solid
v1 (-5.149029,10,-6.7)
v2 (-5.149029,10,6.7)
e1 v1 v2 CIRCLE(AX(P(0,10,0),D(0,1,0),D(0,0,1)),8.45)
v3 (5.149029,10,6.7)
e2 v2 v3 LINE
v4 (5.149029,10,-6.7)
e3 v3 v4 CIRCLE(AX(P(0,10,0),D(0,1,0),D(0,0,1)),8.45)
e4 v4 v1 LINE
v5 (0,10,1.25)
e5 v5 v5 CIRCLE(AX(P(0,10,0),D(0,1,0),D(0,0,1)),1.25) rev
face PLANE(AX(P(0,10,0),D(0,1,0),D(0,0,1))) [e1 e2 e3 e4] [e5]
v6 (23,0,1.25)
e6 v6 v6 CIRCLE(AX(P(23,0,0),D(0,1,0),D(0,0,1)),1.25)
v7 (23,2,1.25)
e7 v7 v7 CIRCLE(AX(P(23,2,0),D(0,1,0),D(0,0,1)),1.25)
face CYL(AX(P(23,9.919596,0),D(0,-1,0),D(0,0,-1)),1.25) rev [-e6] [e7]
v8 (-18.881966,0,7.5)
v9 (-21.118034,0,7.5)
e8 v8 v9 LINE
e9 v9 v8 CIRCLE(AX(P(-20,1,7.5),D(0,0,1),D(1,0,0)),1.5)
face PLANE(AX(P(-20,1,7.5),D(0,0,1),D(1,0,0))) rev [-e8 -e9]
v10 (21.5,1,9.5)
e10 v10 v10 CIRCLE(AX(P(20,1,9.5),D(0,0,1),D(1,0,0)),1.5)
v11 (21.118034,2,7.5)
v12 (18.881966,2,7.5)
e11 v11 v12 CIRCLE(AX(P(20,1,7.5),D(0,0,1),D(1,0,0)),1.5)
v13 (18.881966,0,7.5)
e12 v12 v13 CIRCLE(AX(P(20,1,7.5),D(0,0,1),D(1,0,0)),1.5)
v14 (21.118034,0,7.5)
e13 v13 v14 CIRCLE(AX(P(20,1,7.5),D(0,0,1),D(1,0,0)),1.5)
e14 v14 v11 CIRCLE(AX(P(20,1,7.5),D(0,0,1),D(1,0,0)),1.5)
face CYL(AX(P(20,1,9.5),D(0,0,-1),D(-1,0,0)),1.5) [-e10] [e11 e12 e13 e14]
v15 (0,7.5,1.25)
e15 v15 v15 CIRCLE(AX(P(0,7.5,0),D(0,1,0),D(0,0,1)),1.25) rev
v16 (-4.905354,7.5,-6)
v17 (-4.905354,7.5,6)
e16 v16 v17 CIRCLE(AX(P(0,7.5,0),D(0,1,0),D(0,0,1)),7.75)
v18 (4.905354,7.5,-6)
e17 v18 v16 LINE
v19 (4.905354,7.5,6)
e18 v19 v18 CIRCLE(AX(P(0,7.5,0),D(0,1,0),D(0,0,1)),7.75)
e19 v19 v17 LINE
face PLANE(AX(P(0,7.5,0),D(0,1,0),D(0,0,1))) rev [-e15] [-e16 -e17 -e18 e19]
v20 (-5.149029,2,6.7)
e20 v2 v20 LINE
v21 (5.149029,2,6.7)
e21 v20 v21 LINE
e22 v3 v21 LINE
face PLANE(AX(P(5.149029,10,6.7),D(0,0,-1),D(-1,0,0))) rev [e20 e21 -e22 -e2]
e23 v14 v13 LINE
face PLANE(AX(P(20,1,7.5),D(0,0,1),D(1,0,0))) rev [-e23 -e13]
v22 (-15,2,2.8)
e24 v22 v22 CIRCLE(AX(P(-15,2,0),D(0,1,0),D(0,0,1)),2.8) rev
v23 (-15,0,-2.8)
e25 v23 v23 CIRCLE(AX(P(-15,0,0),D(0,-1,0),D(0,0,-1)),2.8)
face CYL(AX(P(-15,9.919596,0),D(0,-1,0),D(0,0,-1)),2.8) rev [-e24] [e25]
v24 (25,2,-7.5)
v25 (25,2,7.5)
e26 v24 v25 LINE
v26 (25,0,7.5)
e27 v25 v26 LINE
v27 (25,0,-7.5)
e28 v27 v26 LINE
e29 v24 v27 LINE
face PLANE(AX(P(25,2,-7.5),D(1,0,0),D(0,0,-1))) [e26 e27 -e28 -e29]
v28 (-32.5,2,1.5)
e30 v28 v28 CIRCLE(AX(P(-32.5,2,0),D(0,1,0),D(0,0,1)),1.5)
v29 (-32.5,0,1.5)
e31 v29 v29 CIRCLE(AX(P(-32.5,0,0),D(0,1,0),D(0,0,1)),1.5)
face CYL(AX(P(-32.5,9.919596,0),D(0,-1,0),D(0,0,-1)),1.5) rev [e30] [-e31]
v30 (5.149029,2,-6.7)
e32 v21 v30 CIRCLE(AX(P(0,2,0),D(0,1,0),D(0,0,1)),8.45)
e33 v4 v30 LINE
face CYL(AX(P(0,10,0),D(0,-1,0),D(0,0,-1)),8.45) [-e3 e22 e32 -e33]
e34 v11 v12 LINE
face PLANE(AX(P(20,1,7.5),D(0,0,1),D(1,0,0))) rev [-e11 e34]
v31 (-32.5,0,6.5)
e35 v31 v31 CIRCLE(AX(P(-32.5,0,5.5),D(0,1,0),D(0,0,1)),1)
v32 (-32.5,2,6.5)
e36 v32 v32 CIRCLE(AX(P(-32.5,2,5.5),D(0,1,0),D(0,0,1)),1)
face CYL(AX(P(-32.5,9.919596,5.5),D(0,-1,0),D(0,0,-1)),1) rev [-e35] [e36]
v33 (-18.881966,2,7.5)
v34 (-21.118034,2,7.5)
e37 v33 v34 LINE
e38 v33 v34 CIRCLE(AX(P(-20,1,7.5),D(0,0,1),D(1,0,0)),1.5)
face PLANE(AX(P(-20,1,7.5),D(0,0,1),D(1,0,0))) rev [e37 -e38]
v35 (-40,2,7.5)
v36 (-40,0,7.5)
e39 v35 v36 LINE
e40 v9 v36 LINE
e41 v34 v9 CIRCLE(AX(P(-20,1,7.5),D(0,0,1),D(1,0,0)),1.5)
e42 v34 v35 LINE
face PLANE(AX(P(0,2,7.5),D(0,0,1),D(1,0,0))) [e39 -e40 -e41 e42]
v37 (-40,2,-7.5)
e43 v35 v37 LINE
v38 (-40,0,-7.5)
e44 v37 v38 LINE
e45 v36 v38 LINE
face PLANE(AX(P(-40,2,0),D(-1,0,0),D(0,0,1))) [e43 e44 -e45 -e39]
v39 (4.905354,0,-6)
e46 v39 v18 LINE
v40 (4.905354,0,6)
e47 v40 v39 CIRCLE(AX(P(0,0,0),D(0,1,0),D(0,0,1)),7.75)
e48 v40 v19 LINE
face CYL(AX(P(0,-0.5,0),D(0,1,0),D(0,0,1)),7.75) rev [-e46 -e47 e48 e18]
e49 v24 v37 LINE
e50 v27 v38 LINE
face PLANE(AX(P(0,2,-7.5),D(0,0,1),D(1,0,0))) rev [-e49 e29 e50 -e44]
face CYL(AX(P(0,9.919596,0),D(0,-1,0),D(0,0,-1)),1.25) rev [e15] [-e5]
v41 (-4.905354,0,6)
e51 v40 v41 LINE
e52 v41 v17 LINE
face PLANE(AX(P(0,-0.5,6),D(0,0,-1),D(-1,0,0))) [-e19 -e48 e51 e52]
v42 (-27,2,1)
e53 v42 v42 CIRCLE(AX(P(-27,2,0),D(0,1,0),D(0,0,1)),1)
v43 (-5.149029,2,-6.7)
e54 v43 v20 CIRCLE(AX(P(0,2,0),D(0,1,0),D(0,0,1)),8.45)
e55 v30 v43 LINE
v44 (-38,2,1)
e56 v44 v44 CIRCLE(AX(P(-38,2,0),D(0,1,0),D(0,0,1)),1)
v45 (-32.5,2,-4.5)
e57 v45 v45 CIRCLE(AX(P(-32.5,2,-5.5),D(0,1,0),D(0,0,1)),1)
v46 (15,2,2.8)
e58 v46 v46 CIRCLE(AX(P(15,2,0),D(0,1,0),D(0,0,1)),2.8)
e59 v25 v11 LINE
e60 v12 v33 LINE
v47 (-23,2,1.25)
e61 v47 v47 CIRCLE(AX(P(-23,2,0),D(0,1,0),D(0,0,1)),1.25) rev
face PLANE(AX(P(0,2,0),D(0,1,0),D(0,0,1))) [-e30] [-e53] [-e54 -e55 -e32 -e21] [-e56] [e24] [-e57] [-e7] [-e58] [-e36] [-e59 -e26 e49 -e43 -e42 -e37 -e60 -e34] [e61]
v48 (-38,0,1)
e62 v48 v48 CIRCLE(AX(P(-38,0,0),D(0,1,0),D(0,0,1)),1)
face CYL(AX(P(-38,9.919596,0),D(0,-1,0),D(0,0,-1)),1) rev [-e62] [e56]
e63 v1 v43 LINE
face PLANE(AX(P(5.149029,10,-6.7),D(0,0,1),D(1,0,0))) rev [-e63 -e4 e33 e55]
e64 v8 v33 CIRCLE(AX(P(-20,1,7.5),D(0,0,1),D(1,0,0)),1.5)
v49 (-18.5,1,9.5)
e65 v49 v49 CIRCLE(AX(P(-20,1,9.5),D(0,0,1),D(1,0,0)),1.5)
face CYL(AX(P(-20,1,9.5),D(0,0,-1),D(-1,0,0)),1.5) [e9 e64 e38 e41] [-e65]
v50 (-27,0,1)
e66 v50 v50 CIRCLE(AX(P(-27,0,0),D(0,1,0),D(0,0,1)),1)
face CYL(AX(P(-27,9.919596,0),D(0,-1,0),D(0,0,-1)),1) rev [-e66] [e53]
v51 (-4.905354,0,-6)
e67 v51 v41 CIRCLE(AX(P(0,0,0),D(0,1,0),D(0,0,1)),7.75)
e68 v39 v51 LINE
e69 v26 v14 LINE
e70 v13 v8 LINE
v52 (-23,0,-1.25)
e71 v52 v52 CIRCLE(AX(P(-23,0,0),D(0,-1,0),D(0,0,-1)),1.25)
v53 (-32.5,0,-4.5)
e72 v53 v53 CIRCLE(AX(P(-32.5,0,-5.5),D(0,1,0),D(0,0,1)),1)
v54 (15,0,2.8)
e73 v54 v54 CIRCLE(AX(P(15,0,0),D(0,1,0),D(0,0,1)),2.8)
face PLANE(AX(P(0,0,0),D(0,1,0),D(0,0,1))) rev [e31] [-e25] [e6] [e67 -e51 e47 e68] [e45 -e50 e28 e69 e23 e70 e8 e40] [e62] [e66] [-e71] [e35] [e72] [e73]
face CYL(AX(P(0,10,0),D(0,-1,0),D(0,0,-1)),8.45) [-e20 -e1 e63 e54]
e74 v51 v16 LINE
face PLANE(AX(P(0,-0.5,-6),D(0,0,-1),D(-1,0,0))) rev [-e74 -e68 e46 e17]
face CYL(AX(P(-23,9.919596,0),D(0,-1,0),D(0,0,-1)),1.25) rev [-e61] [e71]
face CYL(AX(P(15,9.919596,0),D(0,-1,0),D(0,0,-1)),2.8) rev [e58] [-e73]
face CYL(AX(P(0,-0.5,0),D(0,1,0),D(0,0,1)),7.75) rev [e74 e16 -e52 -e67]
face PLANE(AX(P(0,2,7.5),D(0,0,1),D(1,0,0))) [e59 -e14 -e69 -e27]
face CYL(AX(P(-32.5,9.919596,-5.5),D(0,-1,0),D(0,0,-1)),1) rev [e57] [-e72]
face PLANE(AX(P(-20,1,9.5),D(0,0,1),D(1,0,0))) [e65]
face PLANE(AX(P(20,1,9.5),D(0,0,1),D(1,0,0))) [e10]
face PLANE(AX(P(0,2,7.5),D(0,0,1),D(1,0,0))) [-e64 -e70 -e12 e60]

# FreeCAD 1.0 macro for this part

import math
import FreeCAD as App
import Part
import Sketcher
from FreeCAD import Vector
Q = App.Units.Quantity

doc = App.newDocument("Part")
body = doc.addObject("PartDesign::Body", "Body")

sketch1 = body.newObject("Sketcher::SketchObject", "Sketch")
sketch1.AttachmentSupport = (doc.getObject("XZ_Plane"), [""])
sketch1.MapMode = "FlatFace"
sketch1.addGeometry([
    Part.LineSegment(Vector(-40, -7.5, 0), Vector(-40, 7.5, 0)),
    Part.LineSegment(Vector(-40, 7.5, 0), Vector(25, 7.5, 0)),
    Part.LineSegment(Vector(25, 7.5, 0), Vector(25, -7.5, 0)),
    Part.LineSegment(Vector(25, -7.5, 0), Vector(-40, -7.5, 0)),
], False)
sketch1.addConstraint([
    Sketcher.Constraint("Coincident", 0, 2, 1, 1),
    Sketcher.Constraint("Coincident", 1, 2, 2, 1),
    Sketcher.Constraint("Coincident", 2, 2, 3, 1),
    Sketcher.Constraint("Coincident", 3, 2, 0, 1),
    Sketcher.Constraint("Vertical", 0),
    Sketcher.Constraint("Horizontal", 1),
    Sketcher.Constraint("Vertical", 2),
    Sketcher.Constraint("Horizontal", 3),
    Sketcher.Constraint("DistanceX", 1, 1, 1, 2, Q("65 mm")),
    Sketcher.Constraint("DistanceY", 0, 1, 0, 2, Q("15 mm")),
    Sketcher.Constraint("DistanceX", 0, 2, -1, 1, Q("40 mm")),
    Sketcher.Constraint("DistanceY", -1, 1, 0, 2, Q("7.5 mm")),
])
pad1 = body.newObject("PartDesign::Pad", "Pad")
pad1.Profile = sketch1
pad1.Length = 2
pad1.Reversed = True

sketch2 = body.newObject("Sketcher::SketchObject", "Sketch001")
sketch2.AttachmentSupport = (doc.getObject("XZ_Plane"), [""])
sketch2.MapMode = "FlatFace"
sketch2.addGeometry([
    Part.Circle(Vector(0, 0, 0), Vector(0, 0, 1), 1.25),
    Part.Circle(Vector(15, 0, 0), Vector(0, 0, 1), 2.8),
    Part.Circle(Vector(-15, 0, 0), Vector(0, 0, 1), 2.8),
    Part.Circle(Vector(23, 0, 0), Vector(0, 0, 1), 1.25),
    Part.Circle(Vector(-23, 0, 0), Vector(0, 0, 1), 1.25),
    Part.Circle(Vector(-32.5, 0, 0), Vector(0, 0, 1), 1.5),
    Part.Circle(Vector(-27, 0, 0), Vector(0, 0, 1), 1),
    Part.Circle(Vector(-32.5, 5.5, 0), Vector(0, 0, 1), 1),
    Part.Circle(Vector(-38, 0, 0), Vector(0, 0, 1), 1),
    Part.Circle(Vector(-32.5, -5.5, 0), Vector(0, 0, 1), 1),
], False)
sketch2.addConstraint([
    Sketcher.Constraint("Coincident", 0, 3, -1, 1),
    Sketcher.Constraint("Equal", 1, 2),
    Sketcher.Constraint("Equal", 0, 3),
    Sketcher.Constraint("Equal", 3, 4),
    Sketcher.Constraint("Equal", 6, 7),
    Sketcher.Constraint("Equal", 7, 8),
    Sketcher.Constraint("Equal", 8, 9),
    Sketcher.Constraint("Symmetric", 1, 3, 2, 3, -1, 1),
    Sketcher.Constraint("Symmetric", 3, 3, 4, 3, -1, 1),
    Sketcher.Constraint("Symmetric", 7, 3, 9, 3, -1),
    Sketcher.Constraint("PointOnObject", 1, 3, -1),
    Sketcher.Constraint("PointOnObject", 3, 3, -1),
    Sketcher.Constraint("PointOnObject", 5, 3, -1),
    Sketcher.Constraint("PointOnObject", 6, 3, -1),
    Sketcher.Constraint("PointOnObject", 8, 3, -1),
    Sketcher.Constraint("Vertical", 5, 3, 7, 3),
    Sketcher.Constraint("Diameter", 5, Q("3 mm")),
    Sketcher.Constraint("Diameter", 6, Q("2 mm")),
    Sketcher.Constraint("Diameter", 0, Q("2.5 mm")),
    Sketcher.Constraint("Diameter", 1, Q("5.6 mm")),
    Sketcher.Constraint("DistanceX", -1, 1, 1, 3, Q("15 mm")),
    Sketcher.Constraint("DistanceX", -1, 1, 3, 3, Q("23 mm")),
    Sketcher.Constraint("DistanceX", 6, 3, -1, 1, Q("27 mm")),
    Sketcher.Constraint("DistanceX", 8, 3, -1, 1, Q("38 mm")),
    Sketcher.Constraint("DistanceY", 9, 3, 7, 3, Q("11 mm")),
    Sketcher.Constraint("DistanceX", 5, 3, -1, 1, Q("32.5 mm")),
])
pocket1 = body.newObject("PartDesign::Pocket", "Pocket")
pocket1.Profile = sketch2
pocket1.Length = 2

sketch3 = body.newObject("Sketcher::SketchObject", "Sketch002")
sketch3.AttachmentSupport = (doc.getObject("XY_Plane"), [""])
sketch3.MapMode = "FlatFace"
sketch3.AttachmentOffset = App.Placement(Vector(0, 0, 7.5), App.Rotation())
sketch3.addGeometry([
    Part.Circle(Vector(20, 1, 0), Vector(0, 0, 1), 1.5),
    Part.Circle(Vector(-20, 1, 0), Vector(0, 0, 1), 1.5),
], False)
sketch3.addConstraint([
    Sketcher.Constraint("Equal", 0, 1),
    Sketcher.Constraint("Symmetric", 0, 3, 1, 3, -2),
    Sketcher.Constraint("Diameter", 0, Q("3 mm")),
    Sketcher.Constraint("DistanceX", -1, 1, 0, 3, Q("20 mm")),
    Sketcher.Constraint("DistanceY", -1, 1, 0, 3, Q("1 mm")),
])
pad2 = body.newObject("PartDesign::Pad", "Pad001")
pad2.Profile = sketch3
pad2.Length = 2

sketch4 = body.newObject("Sketcher::SketchObject", "Sketch003")
sketch4.AttachmentSupport = (doc.getObject("XZ_Plane"), [""])
sketch4.MapMode = "FlatFace"
sketch4.AttachmentOffset = App.Placement(Vector(0, 0, -2), App.Rotation())
sketch4.addGeometry([
    Part.LineSegment(Vector(-5.149029, 6.7, 0), Vector(5.149029, 6.7, 0)),
    Part.ArcOfCircle(Part.Circle(Vector(0, 0, 0), Vector(0, 0, 1), 8.45), math.radians(-52.457297), math.radians(52.457297)),
    Part.LineSegment(Vector(5.149029, -6.7, 0), Vector(-5.149029, -6.7, 0)),
    Part.ArcOfCircle(Part.Circle(Vector(0, 0, 0), Vector(0, 0, 1), 8.45), math.radians(127.542703), math.radians(232.457297)),
    Part.LineSegment(Vector(4.905354, 6, 0), Vector(-4.905354, 6, 0)),
    Part.ArcOfCircle(Part.Circle(Vector(0, 0, 0), Vector(0, 0, 1), 7.75), math.radians(129.268026), math.radians(230.731974)),
    Part.LineSegment(Vector(-4.905354, -6, 0), Vector(4.905354, -6, 0)),
    Part.ArcOfCircle(Part.Circle(Vector(0, 0, 0), Vector(0, 0, 1), 7.75), math.radians(-50.731974), math.radians(50.731974)),
], False)
sketch4.addConstraint([
    Sketcher.Constraint("Coincident", 0, 2, 1, 2),
    Sketcher.Constraint("Coincident", 1, 1, 2, 1),
    Sketcher.Constraint("Coincident", 2, 2, 3, 2),
    Sketcher.Constraint("Coincident", 3, 1, 0, 1),
    Sketcher.Constraint("Coincident", 4, 2, 5, 1),
    Sketcher.Constraint("Coincident", 5, 2, 6, 1),
    Sketcher.Constraint("Coincident", 6, 2, 7, 1),
    Sketcher.Constraint("Coincident", 7, 2, 4, 1),
    Sketcher.Constraint("Horizontal", 0),
    Sketcher.Constraint("Horizontal", 2),
    Sketcher.Constraint("Horizontal", 4),
    Sketcher.Constraint("Horizontal", 6),
    Sketcher.Constraint("Coincident", 1, 3, -1, 1),
    Sketcher.Constraint("Coincident", 3, 3, -1, 1),
    Sketcher.Constraint("Coincident", 5, 3, -1, 1),
    Sketcher.Constraint("Coincident", 7, 3, -1, 1),
    Sketcher.Constraint("Equal", 1, 3),
    Sketcher.Constraint("Equal", 5, 7),
    Sketcher.Constraint("Vertical", 0, 2, 1, 1),
    Sketcher.Constraint("Vertical", 4, 2, 5, 2),
    Sketcher.Constraint("Radius", 1, Q("8.45 mm")),
    Sketcher.Constraint("Radius", 5, Q("7.75 mm")),
    Sketcher.Constraint("DistanceY", -1, 1, 4, 2, Q("6 mm")),
    Sketcher.Constraint("DistanceY", -1, 1, 0, 2, Q("6.7 mm")),
])
pad3 = body.newObject("PartDesign::Pad", "Pad002")
pad3.Profile = sketch4
pad3.Length = 8
pad3.Reversed = True

sketch5 = body.newObject("Sketcher::SketchObject", "Sketch004")
sketch5.AttachmentSupport = (doc.getObject("XZ_Plane"), [""])
sketch5.MapMode = "FlatFace"
sketch5.AttachmentOffset = App.Placement(Vector(0, 0, -2), App.Rotation())
sketch5.addGeometry([
    Part.LineSegment(Vector(-4.905354, 6, 0), Vector(4.905354, 6, 0)),
    Part.ArcOfCircle(Part.Circle(Vector(0, 0, 0), Vector(0, 0, 1), 7.75), math.radians(-50.731974), math.radians(50.731974)),
    Part.LineSegment(Vector(4.905354, -6, 0), Vector(-4.905354, -6, 0)),
    Part.ArcOfCircle(Part.Circle(Vector(0, 0, 0), Vector(0, 0, 1), 7.75), math.radians(129.268026), math.radians(230.731974)),
    Part.Circle(Vector(0, 0, 0), Vector(0, 0, 1), 1.25),
], False)
sketch5.addConstraint([
    Sketcher.Constraint("Coincident", 0, 2, 1, 2),
    Sketcher.Constraint("Coincident", 1, 1, 2, 1),
    Sketcher.Constraint("Coincident", 2, 2, 3, 2),
    Sketcher.Constraint("Coincident", 3, 1, 0, 1),
    Sketcher.Constraint("Horizontal", 0),
    Sketcher.Constraint("Horizontal", 2),
    Sketcher.Constraint("Coincident", 1, 3, -1, 1),
    Sketcher.Constraint("Coincident", 3, 3, -1, 1),
    Sketcher.Constraint("Coincident", 4, 3, -1, 1),
    Sketcher.Constraint("Equal", 1, 3),
    Sketcher.Constraint("Vertical", 0, 2, 1, 1),
    Sketcher.Constraint("Diameter", 4, Q("2.5 mm")),
    Sketcher.Constraint("Radius", 1, Q("7.75 mm")),
    Sketcher.Constraint("DistanceY", -1, 1, 0, 2, Q("6 mm")),
])
pad4 = body.newObject("PartDesign::Pad", "Pad003")
pad4.Profile = sketch5
pad4.Length = 8
pad4.Reversed = True

sketch6 = body.newObject("Sketcher::SketchObject", "Sketch005")
sketch6.AttachmentSupport = (doc.getObject("XZ_Plane"), [""])
sketch6.MapMode = "FlatFace"
sketch6.AttachmentOffset = App.Placement(Vector(0, 0, -2), App.Rotation())
sketch6.addGeometry([
    Part.LineSegment(Vector(-4.905354, 6, 0), Vector(4.905354, 6, 0)),
    Part.ArcOfCircle(Part.Circle(Vector(0, 0, 0), Vector(0, 0, 1), 7.75), math.radians(-50.731974), math.radians(50.731974)),
    Part.LineSegment(Vector(4.905354, -6, 0), Vector(-4.905354, -6, 0)),
    Part.ArcOfCircle(Part.Circle(Vector(0, 0, 0), Vector(0, 0, 1), 7.75), math.radians(129.268026), math.radians(230.731974)),
    Part.Circle(Vector(0, 0, 0), Vector(0, 0, 1), 1.25),
], False)
sketch6.addConstraint([
    Sketcher.Constraint("Coincident", 0, 2, 1, 2),
    Sketcher.Constraint("Coincident", 1, 1, 2, 1),
    Sketcher.Constraint("Coincident", 2, 2, 3, 2),
    Sketcher.Constraint("Coincident", 3, 1, 0, 1),
    Sketcher.Constraint("Horizontal", 0),
    Sketcher.Constraint("Horizontal", 2),
    Sketcher.Constraint("Coincident", 1, 3, -1, 1),
    Sketcher.Constraint("Coincident", 3, 3, -1, 1),
    Sketcher.Constraint("Coincident", 4, 3, -1, 1),
    Sketcher.Constraint("Equal", 1, 3),
    Sketcher.Constraint("Vertical", 0, 2, 1, 1),
    Sketcher.Constraint("Diameter", 4, Q("2.5 mm")),
    Sketcher.Constraint("Radius", 1, Q("7.75 mm")),
    Sketcher.Constraint("DistanceY", -1, 1, 0, 2, Q("6 mm")),
])
pocket2 = body.newObject("PartDesign::Pocket", "Pocket001")
pocket2.Profile = sketch6
pocket2.Type = "TwoLengths"
pocket2.Length = 5.5
pocket2.Length2 = 42.883768

doc.recompute()
